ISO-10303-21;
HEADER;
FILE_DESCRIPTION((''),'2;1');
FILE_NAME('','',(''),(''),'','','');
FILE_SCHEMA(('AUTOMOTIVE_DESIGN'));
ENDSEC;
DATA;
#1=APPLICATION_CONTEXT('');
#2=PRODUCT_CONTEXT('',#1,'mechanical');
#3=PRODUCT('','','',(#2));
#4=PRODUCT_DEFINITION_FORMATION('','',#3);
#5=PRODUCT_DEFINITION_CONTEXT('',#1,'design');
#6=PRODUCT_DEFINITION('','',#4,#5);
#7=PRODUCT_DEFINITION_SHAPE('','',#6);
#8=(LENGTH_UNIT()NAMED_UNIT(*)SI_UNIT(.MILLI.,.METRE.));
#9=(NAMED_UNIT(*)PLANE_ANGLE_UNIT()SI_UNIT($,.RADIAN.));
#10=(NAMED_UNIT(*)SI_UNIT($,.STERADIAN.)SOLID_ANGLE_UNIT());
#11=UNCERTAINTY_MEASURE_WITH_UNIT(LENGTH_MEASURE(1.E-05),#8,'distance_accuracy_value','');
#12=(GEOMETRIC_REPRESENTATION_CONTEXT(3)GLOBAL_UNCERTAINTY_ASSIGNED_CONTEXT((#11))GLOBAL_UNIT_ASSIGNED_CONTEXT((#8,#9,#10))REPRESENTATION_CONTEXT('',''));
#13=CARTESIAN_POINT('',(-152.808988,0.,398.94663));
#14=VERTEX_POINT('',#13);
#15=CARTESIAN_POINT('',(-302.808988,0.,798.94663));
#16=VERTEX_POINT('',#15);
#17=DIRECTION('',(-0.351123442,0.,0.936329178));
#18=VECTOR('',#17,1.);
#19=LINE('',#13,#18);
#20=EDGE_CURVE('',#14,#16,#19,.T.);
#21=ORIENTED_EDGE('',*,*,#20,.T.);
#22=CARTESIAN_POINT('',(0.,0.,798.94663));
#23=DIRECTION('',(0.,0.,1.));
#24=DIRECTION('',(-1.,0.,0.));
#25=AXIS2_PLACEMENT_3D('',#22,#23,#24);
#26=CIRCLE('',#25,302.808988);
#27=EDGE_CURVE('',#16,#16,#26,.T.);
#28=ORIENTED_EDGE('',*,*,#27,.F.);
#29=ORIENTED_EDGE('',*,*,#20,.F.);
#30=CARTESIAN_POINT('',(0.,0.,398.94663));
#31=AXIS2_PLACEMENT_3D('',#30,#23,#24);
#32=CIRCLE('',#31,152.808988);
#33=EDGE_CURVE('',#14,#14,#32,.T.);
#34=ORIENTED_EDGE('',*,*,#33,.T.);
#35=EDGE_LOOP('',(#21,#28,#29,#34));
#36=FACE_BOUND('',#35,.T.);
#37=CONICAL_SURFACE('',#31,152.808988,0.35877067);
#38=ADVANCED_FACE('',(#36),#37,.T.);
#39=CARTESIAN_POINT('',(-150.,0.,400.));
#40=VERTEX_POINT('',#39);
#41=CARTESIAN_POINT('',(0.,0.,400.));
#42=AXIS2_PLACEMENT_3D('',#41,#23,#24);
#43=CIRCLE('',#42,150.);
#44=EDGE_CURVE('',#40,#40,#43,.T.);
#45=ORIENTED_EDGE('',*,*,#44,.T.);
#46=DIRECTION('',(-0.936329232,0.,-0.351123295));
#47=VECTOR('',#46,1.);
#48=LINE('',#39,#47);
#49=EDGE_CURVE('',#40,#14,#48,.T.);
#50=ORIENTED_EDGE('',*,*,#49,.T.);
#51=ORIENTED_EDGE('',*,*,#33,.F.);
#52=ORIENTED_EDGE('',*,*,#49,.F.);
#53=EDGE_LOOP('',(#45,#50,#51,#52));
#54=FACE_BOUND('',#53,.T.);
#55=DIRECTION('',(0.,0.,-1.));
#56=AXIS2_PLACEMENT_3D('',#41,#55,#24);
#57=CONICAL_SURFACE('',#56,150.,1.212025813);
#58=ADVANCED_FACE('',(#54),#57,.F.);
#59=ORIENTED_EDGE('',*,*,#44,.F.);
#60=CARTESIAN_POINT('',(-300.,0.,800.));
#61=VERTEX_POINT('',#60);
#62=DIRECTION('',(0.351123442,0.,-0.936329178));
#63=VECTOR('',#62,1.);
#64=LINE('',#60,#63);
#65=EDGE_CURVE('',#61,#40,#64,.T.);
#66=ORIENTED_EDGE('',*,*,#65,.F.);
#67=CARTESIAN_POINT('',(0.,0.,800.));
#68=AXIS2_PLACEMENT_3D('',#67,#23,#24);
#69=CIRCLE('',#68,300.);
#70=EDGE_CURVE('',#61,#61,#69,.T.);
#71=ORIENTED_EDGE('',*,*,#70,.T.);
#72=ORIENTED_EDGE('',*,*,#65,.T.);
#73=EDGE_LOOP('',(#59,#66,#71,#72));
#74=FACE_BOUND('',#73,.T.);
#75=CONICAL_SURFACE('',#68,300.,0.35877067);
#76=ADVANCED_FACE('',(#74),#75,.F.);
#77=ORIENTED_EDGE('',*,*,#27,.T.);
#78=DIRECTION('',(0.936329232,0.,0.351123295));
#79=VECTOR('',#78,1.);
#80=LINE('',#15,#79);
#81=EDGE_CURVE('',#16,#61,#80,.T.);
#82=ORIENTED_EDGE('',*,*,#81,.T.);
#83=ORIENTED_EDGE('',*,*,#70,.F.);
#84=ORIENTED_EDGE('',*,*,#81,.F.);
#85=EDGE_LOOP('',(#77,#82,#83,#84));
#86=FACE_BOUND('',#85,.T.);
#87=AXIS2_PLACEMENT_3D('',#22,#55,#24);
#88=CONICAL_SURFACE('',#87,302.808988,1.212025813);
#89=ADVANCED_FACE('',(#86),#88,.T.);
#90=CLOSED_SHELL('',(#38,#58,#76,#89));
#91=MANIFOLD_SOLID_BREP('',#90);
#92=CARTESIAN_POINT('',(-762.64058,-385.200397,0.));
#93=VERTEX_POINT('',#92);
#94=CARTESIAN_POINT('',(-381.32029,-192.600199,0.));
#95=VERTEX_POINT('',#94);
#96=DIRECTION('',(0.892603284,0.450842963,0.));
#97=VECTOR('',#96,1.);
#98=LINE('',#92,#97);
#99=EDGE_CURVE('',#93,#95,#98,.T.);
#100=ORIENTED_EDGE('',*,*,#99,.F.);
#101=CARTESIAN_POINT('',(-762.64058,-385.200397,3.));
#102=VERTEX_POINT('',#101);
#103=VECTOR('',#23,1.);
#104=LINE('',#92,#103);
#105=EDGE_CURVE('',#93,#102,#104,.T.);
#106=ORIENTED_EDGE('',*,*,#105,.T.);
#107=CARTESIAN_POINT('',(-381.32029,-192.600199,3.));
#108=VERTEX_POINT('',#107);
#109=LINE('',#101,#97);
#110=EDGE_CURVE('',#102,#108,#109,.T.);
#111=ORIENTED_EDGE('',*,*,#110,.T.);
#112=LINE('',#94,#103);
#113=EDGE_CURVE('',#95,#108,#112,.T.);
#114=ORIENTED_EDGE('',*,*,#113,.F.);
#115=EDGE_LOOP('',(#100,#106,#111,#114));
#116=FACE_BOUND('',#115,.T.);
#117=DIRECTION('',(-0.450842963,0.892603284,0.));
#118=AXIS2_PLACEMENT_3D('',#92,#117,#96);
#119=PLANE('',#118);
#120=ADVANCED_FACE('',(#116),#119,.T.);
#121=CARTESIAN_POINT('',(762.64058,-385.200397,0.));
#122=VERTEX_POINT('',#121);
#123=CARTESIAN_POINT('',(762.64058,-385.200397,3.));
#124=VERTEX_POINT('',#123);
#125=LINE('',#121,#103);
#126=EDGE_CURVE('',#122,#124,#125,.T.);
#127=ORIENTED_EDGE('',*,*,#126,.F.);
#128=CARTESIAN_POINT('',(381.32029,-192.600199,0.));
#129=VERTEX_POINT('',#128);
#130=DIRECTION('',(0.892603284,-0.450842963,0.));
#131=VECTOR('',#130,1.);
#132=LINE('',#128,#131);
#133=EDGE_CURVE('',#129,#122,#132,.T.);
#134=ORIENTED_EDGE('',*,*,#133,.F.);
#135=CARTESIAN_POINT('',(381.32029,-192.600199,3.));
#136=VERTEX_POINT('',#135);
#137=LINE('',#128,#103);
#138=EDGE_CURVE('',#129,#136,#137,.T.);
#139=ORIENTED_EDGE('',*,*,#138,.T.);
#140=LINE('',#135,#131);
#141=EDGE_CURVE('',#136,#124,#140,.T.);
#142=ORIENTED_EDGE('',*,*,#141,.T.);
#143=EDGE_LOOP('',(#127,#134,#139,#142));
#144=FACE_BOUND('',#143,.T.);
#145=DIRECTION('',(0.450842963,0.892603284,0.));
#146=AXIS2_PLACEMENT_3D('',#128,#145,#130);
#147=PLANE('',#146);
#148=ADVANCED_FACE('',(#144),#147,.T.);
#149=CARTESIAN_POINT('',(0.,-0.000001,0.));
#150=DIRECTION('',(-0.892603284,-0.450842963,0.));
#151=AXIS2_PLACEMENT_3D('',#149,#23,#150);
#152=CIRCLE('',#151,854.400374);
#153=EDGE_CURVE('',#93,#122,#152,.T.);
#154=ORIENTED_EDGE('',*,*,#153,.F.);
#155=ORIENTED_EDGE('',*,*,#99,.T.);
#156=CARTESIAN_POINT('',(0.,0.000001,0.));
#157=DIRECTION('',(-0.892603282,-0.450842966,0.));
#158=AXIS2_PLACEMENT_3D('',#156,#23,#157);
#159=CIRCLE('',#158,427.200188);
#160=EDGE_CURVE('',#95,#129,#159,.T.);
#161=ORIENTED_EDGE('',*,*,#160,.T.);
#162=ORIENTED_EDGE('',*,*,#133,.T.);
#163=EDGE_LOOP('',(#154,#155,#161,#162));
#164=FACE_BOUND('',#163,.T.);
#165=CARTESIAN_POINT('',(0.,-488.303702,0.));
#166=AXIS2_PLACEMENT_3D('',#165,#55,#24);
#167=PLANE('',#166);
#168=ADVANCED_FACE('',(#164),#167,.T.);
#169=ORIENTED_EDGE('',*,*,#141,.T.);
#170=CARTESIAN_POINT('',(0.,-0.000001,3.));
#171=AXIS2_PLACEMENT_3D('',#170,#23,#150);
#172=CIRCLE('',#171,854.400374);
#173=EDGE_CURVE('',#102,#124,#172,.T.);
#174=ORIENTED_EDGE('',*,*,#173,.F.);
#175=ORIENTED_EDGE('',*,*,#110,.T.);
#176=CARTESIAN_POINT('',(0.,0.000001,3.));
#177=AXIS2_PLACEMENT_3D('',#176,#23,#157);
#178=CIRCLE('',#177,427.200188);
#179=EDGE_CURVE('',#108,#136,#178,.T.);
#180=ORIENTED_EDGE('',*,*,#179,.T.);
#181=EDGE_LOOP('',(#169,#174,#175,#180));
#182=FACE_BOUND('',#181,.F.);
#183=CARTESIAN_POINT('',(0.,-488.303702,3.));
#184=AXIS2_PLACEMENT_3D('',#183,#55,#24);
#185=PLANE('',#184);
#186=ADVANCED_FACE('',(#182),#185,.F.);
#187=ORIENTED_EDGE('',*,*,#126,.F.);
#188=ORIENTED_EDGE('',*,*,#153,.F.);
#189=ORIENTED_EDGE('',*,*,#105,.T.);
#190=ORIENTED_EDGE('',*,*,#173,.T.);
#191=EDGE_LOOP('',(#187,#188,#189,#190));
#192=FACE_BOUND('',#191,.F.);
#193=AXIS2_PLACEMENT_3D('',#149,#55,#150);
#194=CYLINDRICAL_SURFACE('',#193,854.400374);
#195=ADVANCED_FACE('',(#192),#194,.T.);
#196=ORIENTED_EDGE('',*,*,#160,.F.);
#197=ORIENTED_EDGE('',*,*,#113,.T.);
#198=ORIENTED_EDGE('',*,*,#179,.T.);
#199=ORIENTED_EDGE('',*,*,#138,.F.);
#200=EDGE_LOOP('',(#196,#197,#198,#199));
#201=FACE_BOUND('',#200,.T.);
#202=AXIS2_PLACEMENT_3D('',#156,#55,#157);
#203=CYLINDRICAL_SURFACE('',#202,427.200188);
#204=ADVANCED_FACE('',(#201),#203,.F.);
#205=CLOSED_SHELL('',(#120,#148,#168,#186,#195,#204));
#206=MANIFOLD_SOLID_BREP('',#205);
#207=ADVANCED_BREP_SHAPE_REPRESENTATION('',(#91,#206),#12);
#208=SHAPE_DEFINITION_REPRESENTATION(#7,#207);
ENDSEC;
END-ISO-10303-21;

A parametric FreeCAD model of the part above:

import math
import FreeCAD as App
import Part
import Sketcher

V = App.Vector
Q = App.Units.Quantity


def add_polygon(sketch, points):
    """Adds a closed chain of lines whose ends are joined by coincident constraints."""
    first, n = sketch.GeometryCount, len(points)
    for a, b in zip(points, points[1:] + points[:1]):
        sketch.addGeometry(Part.LineSegment(App.Vector(*a, 0), App.Vector(*b, 0)), False)
    for i in range(n):
        sketch.addConstraint(Sketcher.Constraint("Coincident", first + i, 2, first + (i + 1) % n, 1))

doc = App.newDocument("Part")
body = doc.addObject("PartDesign::Body", "Body")

sketch1 = body.newObject("Sketcher::SketchObject", "Sketch")
sketch1.AttachmentSupport = (doc.getObject("XZ_Plane"), [""])
sketch1.MapMode = "FlatFace"
add_polygon(sketch1, [(-150, 400), (-300, 800), (-302.8, 798.9), (-152.8, 398.9)])
sketch1.addConstraint(Sketcher.Constraint("Perpendicular", 0, 1))
sketch1.addConstraint(Sketcher.Constraint("Perpendicular", 1, 2))
sketch1.addConstraint(Sketcher.Constraint("Perpendicular", 2, 3))
sketch1.addConstraint(Sketcher.Constraint("Distance", 1, Q("3 mm")))
sketch1.addConstraint(Sketcher.Constraint("DistanceX", 0, 2, -1, 1, Q("300 mm")))
sketch1.addConstraint(Sketcher.Constraint("DistanceY", -1, 1, 0, 2, Q("800 mm")))
sketch1.addConstraint(Sketcher.Constraint("DistanceX", 3, 2, -1, 1, Q("150 mm")))
sketch1.addConstraint(Sketcher.Constraint("DistanceY", -1, 1, 3, 2, Q("400 mm")))
revolution = body.newObject("PartDesign::Revolution", "Revolution")
revolution.Profile = sketch1
revolution.ReferenceAxis = (sketch1, ["V_Axis"])
revolution.Angle = 360
body2 = doc.addObject("PartDesign::Body", "Body001")

sketch2 = body2.newObject("Sketcher::SketchObject", "Sketch001")
sketch2.AttachmentSupport = (doc.getObject("XY_Plane001"), [""])
sketch2.MapMode = "FlatFace"
sketch2.addGeometry(Part.ArcOfCircle(Part.Circle(V(0, 0, 0), V(0, 0, 1), 427), math.radians(-153), math.radians(-27)), False)
sketch2.addGeometry(Part.LineSegment(V(-381, -193, 0), V(-763, -385, 0)), False)
sketch2.addGeometry(Part.ArcOfCircle(Part.Circle(V(0, 0, 0), V(0, 0, 1), 854), math.radians(-153), math.radians(-27)), False)
sketch2.addGeometry(Part.LineSegment(V(763, -385, 0), V(381, -193, 0)), False)
sketch2.addConstraint(Sketcher.Constraint("Coincident", 0, 1, 1, 1))
sketch2.addConstraint(Sketcher.Constraint("Coincident", 1, 2, 2, 1))
sketch2.addConstraint(Sketcher.Constraint("Coincident", 2, 2, 3, 1))
sketch2.addConstraint(Sketcher.Constraint("Coincident", 3, 2, 0, 2))
sketch2.addConstraint(Sketcher.Constraint("Coincident", 0, 3, -1, 1))
sketch2.addConstraint(Sketcher.Constraint("Coincident", 2, 3, -1, 1))
sketch2.addConstraint(Sketcher.Constraint("Horizontal", 0, 1, 3, 2))
sketch2.addConstraint(Sketcher.Constraint("Radius", 0, Q("427.200188 mm")))
sketch2.addConstraint(Sketcher.Constraint("Radius", 2, Q("854.400374 mm")))
sketch2.addConstraint(Sketcher.Constraint("DistanceY", 3, 2, -1, 1, Q("192.600199 mm")))
sketch2.addConstraint(Sketcher.Constraint("DistanceY", 1, 2, 0, 1, Q("192.600198 mm")))
sketch2.addConstraint(Sketcher.Constraint("Angle", 3, Q("153.20222 deg")))
pad1 = body2.newObject("PartDesign::Pad", "Pad")
pad1.Profile = sketch2
pad1.Length = 3

doc.recompute()
